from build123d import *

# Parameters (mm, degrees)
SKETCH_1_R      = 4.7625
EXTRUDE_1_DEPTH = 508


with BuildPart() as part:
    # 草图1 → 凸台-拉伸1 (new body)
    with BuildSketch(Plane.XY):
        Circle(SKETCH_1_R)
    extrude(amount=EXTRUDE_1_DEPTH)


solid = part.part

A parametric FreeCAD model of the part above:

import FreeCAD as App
import Part
import Sketcher

V = App.Vector
Q = App.Units.Quantity

doc = App.newDocument("Part")
body = doc.addObject("PartDesign::Body", "Body")

# Sketch on XY plane
sketch1 = body.newObject("Sketcher::SketchObject", "Sketch")
sketch1.AttachmentSupport = (doc.getObject("XY_Plane"), [""])
sketch1.MapMode = "FlatFace"
sketch1.addGeometry(Part.Circle(V(0, 0, 0), V(0, 0, 1), 4.8), False)
sketch1.addConstraint([
    Sketcher.Constraint("Coincident", 0, 3, -1, 1),
    Sketcher.Constraint("Diameter", 0, Q("0.375 in")),
])
pad1 = body.newObject("PartDesign::Pad", "Pad")
pad1.Profile = sketch1
pad1.Length = Q("20 in")

doc.recompute()
